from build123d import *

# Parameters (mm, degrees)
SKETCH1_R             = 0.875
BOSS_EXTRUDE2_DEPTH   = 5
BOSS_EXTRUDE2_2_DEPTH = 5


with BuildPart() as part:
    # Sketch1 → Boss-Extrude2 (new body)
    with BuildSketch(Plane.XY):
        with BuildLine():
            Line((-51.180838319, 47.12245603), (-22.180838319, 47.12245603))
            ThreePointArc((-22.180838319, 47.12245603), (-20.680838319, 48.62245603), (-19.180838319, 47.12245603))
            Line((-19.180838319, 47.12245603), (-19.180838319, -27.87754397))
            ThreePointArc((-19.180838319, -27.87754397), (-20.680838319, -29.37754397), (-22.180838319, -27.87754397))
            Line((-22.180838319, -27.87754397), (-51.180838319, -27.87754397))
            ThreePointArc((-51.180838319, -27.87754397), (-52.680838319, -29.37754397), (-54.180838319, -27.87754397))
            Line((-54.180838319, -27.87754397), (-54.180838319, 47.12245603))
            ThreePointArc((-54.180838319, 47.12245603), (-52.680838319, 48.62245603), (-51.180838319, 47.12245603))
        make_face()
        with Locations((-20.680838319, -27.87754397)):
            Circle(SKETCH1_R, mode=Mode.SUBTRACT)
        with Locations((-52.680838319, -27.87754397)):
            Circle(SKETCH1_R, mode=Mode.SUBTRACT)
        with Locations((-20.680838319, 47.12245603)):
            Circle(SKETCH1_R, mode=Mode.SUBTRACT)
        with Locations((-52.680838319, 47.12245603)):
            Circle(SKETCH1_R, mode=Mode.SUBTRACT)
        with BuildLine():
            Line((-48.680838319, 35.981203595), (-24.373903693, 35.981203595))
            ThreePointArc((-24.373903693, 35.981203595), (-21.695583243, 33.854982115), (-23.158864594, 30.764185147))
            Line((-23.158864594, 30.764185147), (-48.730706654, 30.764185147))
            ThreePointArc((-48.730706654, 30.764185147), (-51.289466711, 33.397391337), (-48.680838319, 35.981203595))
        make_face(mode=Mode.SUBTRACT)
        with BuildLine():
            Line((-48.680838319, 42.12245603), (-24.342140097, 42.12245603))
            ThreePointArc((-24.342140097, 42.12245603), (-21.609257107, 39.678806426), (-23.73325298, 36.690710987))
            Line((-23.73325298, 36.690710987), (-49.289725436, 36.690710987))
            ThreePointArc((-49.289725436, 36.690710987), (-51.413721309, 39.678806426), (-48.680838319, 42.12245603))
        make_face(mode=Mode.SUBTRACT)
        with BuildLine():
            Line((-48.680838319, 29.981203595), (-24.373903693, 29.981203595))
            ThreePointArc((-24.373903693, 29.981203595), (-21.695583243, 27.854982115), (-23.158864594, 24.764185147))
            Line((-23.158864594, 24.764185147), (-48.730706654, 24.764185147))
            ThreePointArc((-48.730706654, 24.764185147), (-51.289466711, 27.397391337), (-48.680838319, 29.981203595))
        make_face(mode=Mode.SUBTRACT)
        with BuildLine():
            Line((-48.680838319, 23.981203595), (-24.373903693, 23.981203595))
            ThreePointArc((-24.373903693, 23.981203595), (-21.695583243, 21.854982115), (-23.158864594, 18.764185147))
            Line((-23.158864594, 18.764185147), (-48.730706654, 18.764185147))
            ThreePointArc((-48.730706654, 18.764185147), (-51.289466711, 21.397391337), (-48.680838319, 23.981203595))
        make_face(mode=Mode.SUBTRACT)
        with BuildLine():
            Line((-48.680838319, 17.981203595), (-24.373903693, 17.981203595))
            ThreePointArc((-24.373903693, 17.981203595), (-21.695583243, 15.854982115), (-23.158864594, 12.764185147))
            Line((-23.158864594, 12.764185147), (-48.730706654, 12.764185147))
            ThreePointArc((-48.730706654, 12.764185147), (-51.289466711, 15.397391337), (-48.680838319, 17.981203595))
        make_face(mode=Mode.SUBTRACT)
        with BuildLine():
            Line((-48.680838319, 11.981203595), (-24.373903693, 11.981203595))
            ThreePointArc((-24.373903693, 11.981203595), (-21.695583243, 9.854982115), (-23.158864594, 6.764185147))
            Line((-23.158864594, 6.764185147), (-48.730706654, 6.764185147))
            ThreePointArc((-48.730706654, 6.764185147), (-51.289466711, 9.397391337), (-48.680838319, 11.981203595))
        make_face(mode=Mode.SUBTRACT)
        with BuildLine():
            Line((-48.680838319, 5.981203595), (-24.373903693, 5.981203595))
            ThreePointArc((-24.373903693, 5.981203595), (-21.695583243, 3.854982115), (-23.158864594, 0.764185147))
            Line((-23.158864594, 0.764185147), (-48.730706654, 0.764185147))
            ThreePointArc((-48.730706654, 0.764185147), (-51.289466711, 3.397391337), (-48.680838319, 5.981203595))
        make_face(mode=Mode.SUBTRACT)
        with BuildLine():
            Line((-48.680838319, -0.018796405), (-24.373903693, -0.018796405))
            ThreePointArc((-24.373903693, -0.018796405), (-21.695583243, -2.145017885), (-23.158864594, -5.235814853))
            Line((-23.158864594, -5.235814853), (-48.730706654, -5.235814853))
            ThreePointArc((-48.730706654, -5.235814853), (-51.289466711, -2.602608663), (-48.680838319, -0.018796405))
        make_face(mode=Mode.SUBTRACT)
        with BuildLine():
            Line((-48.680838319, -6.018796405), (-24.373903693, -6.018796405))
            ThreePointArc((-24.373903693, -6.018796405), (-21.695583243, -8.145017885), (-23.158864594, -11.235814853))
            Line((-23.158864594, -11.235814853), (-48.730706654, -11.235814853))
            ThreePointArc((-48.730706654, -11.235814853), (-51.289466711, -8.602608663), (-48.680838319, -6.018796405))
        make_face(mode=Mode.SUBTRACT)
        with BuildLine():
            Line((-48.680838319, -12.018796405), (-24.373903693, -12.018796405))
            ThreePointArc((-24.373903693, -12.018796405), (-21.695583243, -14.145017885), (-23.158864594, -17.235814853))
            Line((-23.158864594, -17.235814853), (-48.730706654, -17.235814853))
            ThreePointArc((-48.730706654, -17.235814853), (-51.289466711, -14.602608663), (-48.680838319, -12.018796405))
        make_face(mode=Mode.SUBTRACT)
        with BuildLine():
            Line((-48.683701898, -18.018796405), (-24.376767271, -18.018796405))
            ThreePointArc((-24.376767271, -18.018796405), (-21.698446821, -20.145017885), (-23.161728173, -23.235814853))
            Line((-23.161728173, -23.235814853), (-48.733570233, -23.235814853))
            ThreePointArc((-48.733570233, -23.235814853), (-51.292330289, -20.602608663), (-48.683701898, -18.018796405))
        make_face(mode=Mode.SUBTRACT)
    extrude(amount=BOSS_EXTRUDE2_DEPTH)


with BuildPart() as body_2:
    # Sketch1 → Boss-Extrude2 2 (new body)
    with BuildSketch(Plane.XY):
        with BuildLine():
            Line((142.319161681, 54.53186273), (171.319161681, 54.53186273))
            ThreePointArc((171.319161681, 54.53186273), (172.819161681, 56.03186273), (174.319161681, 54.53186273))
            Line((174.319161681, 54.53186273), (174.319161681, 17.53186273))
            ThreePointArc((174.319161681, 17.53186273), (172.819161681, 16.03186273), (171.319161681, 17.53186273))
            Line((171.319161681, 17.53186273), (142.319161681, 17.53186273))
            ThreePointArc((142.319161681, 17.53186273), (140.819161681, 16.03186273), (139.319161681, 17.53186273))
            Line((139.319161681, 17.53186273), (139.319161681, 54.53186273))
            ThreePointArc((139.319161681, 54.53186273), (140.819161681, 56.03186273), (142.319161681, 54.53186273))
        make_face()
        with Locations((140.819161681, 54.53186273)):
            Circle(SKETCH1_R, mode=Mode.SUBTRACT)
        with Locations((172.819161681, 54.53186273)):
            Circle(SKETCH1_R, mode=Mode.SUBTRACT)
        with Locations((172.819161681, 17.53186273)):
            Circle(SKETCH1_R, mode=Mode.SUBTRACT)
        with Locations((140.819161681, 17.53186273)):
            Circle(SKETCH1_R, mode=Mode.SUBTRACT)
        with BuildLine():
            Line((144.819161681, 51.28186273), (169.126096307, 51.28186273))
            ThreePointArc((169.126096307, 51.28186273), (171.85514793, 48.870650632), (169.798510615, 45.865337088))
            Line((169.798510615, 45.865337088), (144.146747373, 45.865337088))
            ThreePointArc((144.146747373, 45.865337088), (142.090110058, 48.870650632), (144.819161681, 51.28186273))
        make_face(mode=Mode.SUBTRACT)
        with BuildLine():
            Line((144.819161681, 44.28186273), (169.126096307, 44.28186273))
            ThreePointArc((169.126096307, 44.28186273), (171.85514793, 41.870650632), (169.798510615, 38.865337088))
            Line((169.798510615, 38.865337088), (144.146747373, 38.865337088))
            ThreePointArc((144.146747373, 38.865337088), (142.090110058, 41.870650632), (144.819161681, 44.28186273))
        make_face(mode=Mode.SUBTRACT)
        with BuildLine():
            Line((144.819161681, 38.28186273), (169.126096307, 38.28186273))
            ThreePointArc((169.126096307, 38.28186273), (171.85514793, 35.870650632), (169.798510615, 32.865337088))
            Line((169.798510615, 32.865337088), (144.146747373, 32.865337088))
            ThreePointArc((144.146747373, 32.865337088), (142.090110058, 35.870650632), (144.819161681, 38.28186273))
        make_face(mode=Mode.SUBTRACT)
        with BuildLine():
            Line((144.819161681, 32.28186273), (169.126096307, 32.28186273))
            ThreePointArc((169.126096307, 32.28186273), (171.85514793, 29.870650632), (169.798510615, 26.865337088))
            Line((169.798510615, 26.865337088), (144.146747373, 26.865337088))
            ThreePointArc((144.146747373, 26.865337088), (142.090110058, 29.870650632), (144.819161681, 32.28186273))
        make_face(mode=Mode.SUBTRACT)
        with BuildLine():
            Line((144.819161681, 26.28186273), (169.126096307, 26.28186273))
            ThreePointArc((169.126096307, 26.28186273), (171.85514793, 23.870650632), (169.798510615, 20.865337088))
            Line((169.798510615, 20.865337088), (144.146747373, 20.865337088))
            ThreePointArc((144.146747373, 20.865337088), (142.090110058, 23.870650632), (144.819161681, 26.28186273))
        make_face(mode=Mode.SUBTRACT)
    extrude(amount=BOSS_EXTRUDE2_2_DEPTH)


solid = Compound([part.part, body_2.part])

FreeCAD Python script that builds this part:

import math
import FreeCAD as App
import Part
import Sketcher
from FreeCAD import Vector
Q = App.Units.Quantity

doc = App.newDocument("Part")
body = doc.addObject("PartDesign::Body", "Body")

# Sketch on XY plane
sketch1 = doc.addObject("Sketcher::SketchObject", "Sketch")
body.addObject(sketch1)
sketch1.AttachmentSupport = (doc.XY_Plane, [""])
sketch1.MapMode = "FlatFace"
sketch1.addGeometry(Part.LineSegment(Vector(-22.180838, 47.122456, 0), Vector(-51.180838, 47.122456, 0)), False)
sketch1.addGeometry(Part.ArcOfCircle(Part.Circle(Vector(-52.680838, 47.122456, 0), Vector(0, 0, 1), 1.5), math.radians(0), math.radians(180)), False)
sketch1.addGeometry(Part.LineSegment(Vector(-54.180838, 47.122456, 0), Vector(-54.180838, -27.877544, 0)), False)
sketch1.addGeometry(Part.ArcOfCircle(Part.Circle(Vector(-52.680838, -27.877544, 0), Vector(0, 0, 1), 1.5), math.radians(180), math.radians(360)), False)
sketch1.addGeometry(Part.LineSegment(Vector(-51.180838, -27.877544, 0), Vector(-22.180838, -27.877544, 0)), False)
sketch1.addGeometry(Part.ArcOfCircle(Part.Circle(Vector(-20.680838, -27.877544, 0), Vector(0, 0, 1), 1.5), math.radians(180), math.radians(360)), False)
sketch1.addGeometry(Part.LineSegment(Vector(-19.180838, -27.877544, 0), Vector(-19.180838, 47.122456, 0)), False)
sketch1.addGeometry(Part.ArcOfCircle(Part.Circle(Vector(-20.680838, 47.122456, 0), Vector(0, 0, 1), 1.5), math.radians(0), math.radians(180)), False)
sketch1.addGeometry(Part.Circle(Vector(-20.680838, -27.877544, 0), Vector(0, 0, 1), 0.875), False)
sketch1.addGeometry(Part.LineSegment(Vector(-48.683702, -18.018796, 0), Vector(-24.376767, -18.018796, 0)), False)
sketch1.addGeometry(Part.ArcOfCircle(Part.Circle(Vector(-24.376767, -20.768796, 0), Vector(0, 0, 1), 2.75), math.radians(-63.779146), math.radians(90)), False)
sketch1.addGeometry(Part.LineSegment(Vector(-23.161728, -23.235815, 0), Vector(-48.73357, -23.235815, 0)), False)
sketch1.addGeometry(Part.ArcOfCircle(Part.Circle(Vector(-48.683702, -20.627544, 0), Vector(0, 0, 1), 2.608748), math.radians(90), math.radians(268.904678)), False)
sketch1.addGeometry(Part.LineSegment(Vector(-48.680838, -12.018796, 0), Vector(-24.373904, -12.018796, 0)), False)
sketch1.addGeometry(Part.ArcOfCircle(Part.Circle(Vector(-24.373904, -14.768796, 0), Vector(0, 0, 1), 2.75), math.radians(-63.779146), math.radians(90)), False)
sketch1.addGeometry(Part.LineSegment(Vector(-23.158865, -17.235815, 0), Vector(-48.730707, -17.235815, 0)), False)
sketch1.addGeometry(Part.ArcOfCircle(Part.Circle(Vector(-48.680838, -14.627544, 0), Vector(0, 0, 1), 2.608748), math.radians(90), math.radians(268.904678)), False)
sketch1.addGeometry(Part.LineSegment(Vector(-48.680838, -6.018796, 0), Vector(-24.373904, -6.018796, 0)), False)
sketch1.addGeometry(Part.ArcOfCircle(Part.Circle(Vector(-24.373904, -8.768796, 0), Vector(0, 0, 1), 2.75), math.radians(-63.779146), math.radians(90)), False)
sketch1.addGeometry(Part.LineSegment(Vector(-23.158865, -11.235815, 0), Vector(-48.730707, -11.235815, 0)), False)
sketch1.addGeometry(Part.ArcOfCircle(Part.Circle(Vector(-48.680838, -8.627544, 0), Vector(0, 0, 1), 2.608748), math.radians(90), math.radians(268.904678)), False)
sketch1.addGeometry(Part.LineSegment(Vector(-48.680838, -0.018796, 0), Vector(-24.373904, -0.018796, 0)), False)
sketch1.addGeometry(Part.ArcOfCircle(Part.Circle(Vector(-24.373904, -2.768796, 0), Vector(0, 0, 1), 2.75), math.radians(-63.779146), math.radians(90)), False)
sketch1.addGeometry(Part.LineSegment(Vector(-23.158865, -5.235815, 0), Vector(-48.730707, -5.235815, 0)), False)
sketch1.addGeometry(Part.ArcOfCircle(Part.Circle(Vector(-48.680838, -2.627544, 0), Vector(0, 0, 1), 2.608748), math.radians(90), math.radians(268.904678)), False)
sketch1.addGeometry(Part.LineSegment(Vector(-48.680838, 5.981204, 0), Vector(-24.373904, 5.981204, 0)), False)
sketch1.addGeometry(Part.ArcOfCircle(Part.Circle(Vector(-24.373904, 3.231204, 0), Vector(0, 0, 1), 2.75), math.radians(-63.779146), math.radians(90)), False)
sketch1.addGeometry(Part.LineSegment(Vector(-23.158865, 0.764185, 0), Vector(-48.730707, 0.764185, 0)), False)
sketch1.addGeometry(Part.ArcOfCircle(Part.Circle(Vector(-48.680838, 3.372456, 0), Vector(0, 0, 1), 2.608748), math.radians(90), math.radians(268.904678)), False)
sketch1.addGeometry(Part.LineSegment(Vector(-48.680838, 11.981204, 0), Vector(-24.373904, 11.981204, 0)), False)
sketch1.addGeometry(Part.ArcOfCircle(Part.Circle(Vector(-24.373904, 9.231204, 0), Vector(0, 0, 1), 2.75), math.radians(-63.779146), math.radians(90)), False)
sketch1.addGeometry(Part.LineSegment(Vector(-23.158865, 6.764185, 0), Vector(-48.730707, 6.764185, 0)), False)
sketch1.addGeometry(Part.ArcOfCircle(Part.Circle(Vector(-48.680838, 9.372456, 0), Vector(0, 0, 1), 2.608748), math.radians(90), math.radians(268.904678)), False)
sketch1.addGeometry(Part.Circle(Vector(-52.680838, -27.877544, 0), Vector(0, 0, 1), 0.875), False)
sketch1.addGeometry(Part.LineSegment(Vector(-48.680838, 17.981204, 0), Vector(-24.373904, 17.981204, 0)), False)
sketch1.addGeometry(Part.ArcOfCircle(Part.Circle(Vector(-24.373904, 15.231204, 0), Vector(0, 0, 1), 2.75), math.radians(-63.779146), math.radians(90)), False)
sketch1.addGeometry(Part.LineSegment(Vector(-23.158865, 12.764185, 0), Vector(-48.730707, 12.764185, 0)), False)
sketch1.addGeometry(Part.ArcOfCircle(Part.Circle(Vector(-48.680838, 15.372456, 0), Vector(0, 0, 1), 2.608748), math.radians(90), math.radians(268.904678)), False)
sketch1.addGeometry(Part.LineSegment(Vector(-48.680838, 23.981204, 0), Vector(-24.373904, 23.981204, 0)), False)
sketch1.addGeometry(Part.ArcOfCircle(Part.Circle(Vector(-24.373904, 21.231204, 0), Vector(0, 0, 1), 2.75), math.radians(-63.779146), math.radians(90)), False)
sketch1.addGeometry(Part.LineSegment(Vector(-23.158865, 18.764185, 0), Vector(-48.730707, 18.764185, 0)), False)
sketch1.addGeometry(Part.ArcOfCircle(Part.Circle(Vector(-48.680838, 21.372456, 0), Vector(0, 0, 1), 2.608748), math.radians(90), math.radians(268.904678)), False)
sketch1.addGeometry(Part.LineSegment(Vector(-48.680838, 29.981204, 0), Vector(-24.373904, 29.981204, 0)), False)
sketch1.addGeometry(Part.ArcOfCircle(Part.Circle(Vector(-24.373904, 27.231204, 0), Vector(0, 0, 1), 2.75), math.radians(-63.779146), math.radians(90)), False)
sketch1.addGeometry(Part.LineSegment(Vector(-23.158865, 24.764185, 0), Vector(-48.730707, 24.764185, 0)), False)
sketch1.addGeometry(Part.ArcOfCircle(Part.Circle(Vector(-48.680838, 27.372456, 0), Vector(0, 0, 1), 2.608748), math.radians(90), math.radians(268.904678)), False)
sketch1.addGeometry(Part.Circle(Vector(-20.680838, 47.122456, 0), Vector(0, 0, 1), 0.875), False)
sketch1.addGeometry(Part.LineSegment(Vector(-48.680838, 35.981204, 0), Vector(-24.373904, 35.981204, 0)), False)
sketch1.addGeometry(Part.ArcOfCircle(Part.Circle(Vector(-24.373904, 33.231204, 0), Vector(0, 0, 1), 2.75), math.radians(-63.779146), math.radians(90)), False)
sketch1.addGeometry(Part.LineSegment(Vector(-23.158865, 30.764185, 0), Vector(-48.730707, 30.764185, 0)), False)
sketch1.addGeometry(Part.ArcOfCircle(Part.Circle(Vector(-48.680838, 33.372456, 0), Vector(0, 0, 1), 2.608748), math.radians(90), math.radians(268.904678)), False)
sketch1.addGeometry(Part.LineSegment(Vector(-48.680838, 42.122456, 0), Vector(-24.34214, 42.122456, 0)), False)
sketch1.addGeometry(Part.ArcOfCircle(Part.Circle(Vector(-24.34214, 39.372456, 0), Vector(0, 0, 1), 2.75), math.radians(-77.207932), math.radians(90)), False)
sketch1.addGeometry(Part.LineSegment(Vector(-23.733253, 36.690711, 0), Vector(-49.289725, 36.690711, 0)), False)
sketch1.addGeometry(Part.ArcOfCircle(Part.Circle(Vector(-48.680838, 39.372456, 0), Vector(0, 0, 1), 2.75), math.radians(90), math.radians(257.207932)), False)
sketch1.addGeometry(Part.Circle(Vector(-52.680838, 47.122456, 0), Vector(0, 0, 1), 0.875), False)
sketch1.addConstraint(Sketcher.Constraint("Coincident", 0, 2, 1, 1))
sketch1.addConstraint(Sketcher.Constraint("Tangent", 1, 2, 2, 1))
sketch1.addConstraint(Sketcher.Constraint("Tangent", 2, 2, 3, 1))
sketch1.addConstraint(Sketcher.Constraint("Coincident", 3, 2, 4, 1))
sketch1.addConstraint(Sketcher.Constraint("Coincident", 4, 2, 5, 1))
sketch1.addConstraint(Sketcher.Constraint("Tangent", 5, 2, 6, 1))
sketch1.addConstraint(Sketcher.Constraint("Tangent", 6, 2, 7, 1))
sketch1.addConstraint(Sketcher.Constraint("Coincident", 7, 2, 0, 1))
sketch1.addConstraint(Sketcher.Constraint("Tangent", 9, 2, 10, 2))
sketch1.addConstraint(Sketcher.Constraint("Coincident", 10, 1, 11, 1))
sketch1.addConstraint(Sketcher.Constraint("Coincident", 11, 2, 12, 2))
sketch1.addConstraint(Sketcher.Constraint("Tangent", 12, 1, 9, 1))
sketch1.addConstraint(Sketcher.Constraint("Tangent", 13, 2, 14, 2))
sketch1.addConstraint(Sketcher.Constraint("Coincident", 14, 1, 15, 1))
sketch1.addConstraint(Sketcher.Constraint("Coincident", 15, 2, 16, 2))
sketch1.addConstraint(Sketcher.Constraint("Tangent", 16, 1, 13, 1))
sketch1.addConstraint(Sketcher.Constraint("Tangent", 17, 2, 18, 2))
sketch1.addConstraint(Sketcher.Constraint("Coincident", 18, 1, 19, 1))
sketch1.addConstraint(Sketcher.Constraint("Coincident", 19, 2, 20, 2))
sketch1.addConstraint(Sketcher.Constraint("Tangent", 20, 1, 17, 1))
sketch1.addConstraint(Sketcher.Constraint("Tangent", 21, 2, 22, 2))
sketch1.addConstraint(Sketcher.Constraint("Coincident", 22, 1, 23, 1))
sketch1.addConstraint(Sketcher.Constraint("Coincident", 23, 2, 24, 2))
sketch1.addConstraint(Sketcher.Constraint("Tangent", 24, 1, 21, 1))
sketch1.addConstraint(Sketcher.Constraint("Tangent", 25, 2, 26, 2))
sketch1.addConstraint(Sketcher.Constraint("Coincident", 26, 1, 27, 1))
sketch1.addConstraint(Sketcher.Constraint("Coincident", 27, 2, 28, 2))
sketch1.addConstraint(Sketcher.Constraint("Tangent", 28, 1, 25, 1))
sketch1.addConstraint(Sketcher.Constraint("Tangent", 29, 2, 30, 2))
sketch1.addConstraint(Sketcher.Constraint("Coincident", 30, 1, 31, 1))
sketch1.addConstraint(Sketcher.Constraint("Coincident", 31, 2, 32, 2))
sketch1.addConstraint(Sketcher.Constraint("Tangent", 32, 1, 29, 1))
sketch1.addConstraint(Sketcher.Constraint("Tangent", 34, 2, 35, 2))
sketch1.addConstraint(Sketcher.Constraint("Coincident", 35, 1, 36, 1))
sketch1.addConstraint(Sketcher.Constraint("Coincident", 36, 2, 37, 2))
sketch1.addConstraint(Sketcher.Constraint("Tangent", 37, 1, 34, 1))
sketch1.addConstraint(Sketcher.Constraint("Tangent", 38, 2, 39, 2))
sketch1.addConstraint(Sketcher.Constraint("Coincident", 39, 1, 40, 1))
sketch1.addConstraint(Sketcher.Constraint("Coincident", 40, 2, 41, 2))
sketch1.addConstraint(Sketcher.Constraint("Tangent", 41, 1, 38, 1))
sketch1.addConstraint(Sketcher.Constraint("Tangent", 42, 2, 43, 2))
sketch1.addConstraint(Sketcher.Constraint("Coincident", 43, 1, 44, 1))
sketch1.addConstraint(Sketcher.Constraint("Coincident", 44, 2, 45, 2))
sketch1.addConstraint(Sketcher.Constraint("Tangent", 45, 1, 42, 1))
sketch1.addConstraint(Sketcher.Constraint("Tangent", 47, 2, 48, 2))
sketch1.addConstraint(Sketcher.Constraint("Coincident", 48, 1, 49, 1))
sketch1.addConstraint(Sketcher.Constraint("Coincident", 49, 2, 50, 2))
sketch1.addConstraint(Sketcher.Constraint("Tangent", 50, 1, 47, 1))
sketch1.addConstraint(Sketcher.Constraint("Tangent", 51, 2, 52, 2))
sketch1.addConstraint(Sketcher.Constraint("Coincident", 52, 1, 53, 1))
sketch1.addConstraint(Sketcher.Constraint("Coincident", 53, 2, 54, 2))
sketch1.addConstraint(Sketcher.Constraint("Tangent", 54, 1, 51, 1))
sketch1.addConstraint(Sketcher.Constraint("Horizontal", 0))
sketch1.addConstraint(Sketcher.Constraint("Vertical", 2))
sketch1.addConstraint(Sketcher.Constraint("Horizontal", 4))
sketch1.addConstraint(Sketcher.Constraint("Vertical", 6))
sketch1.addConstraint(Sketcher.Constraint("Horizontal", 9))
sketch1.addConstraint(Sketcher.Constraint("Horizontal", 11))
sketch1.addConstraint(Sketcher.Constraint("Horizontal", 13))
sketch1.addConstraint(Sketcher.Constraint("Horizontal", 15))
sketch1.addConstraint(Sketcher.Constraint("Horizontal", 17))
sketch1.addConstraint(Sketcher.Constraint("Horizontal", 19))
sketch1.addConstraint(Sketcher.Constraint("Horizontal", 21))
sketch1.addConstraint(Sketcher.Constraint("Horizontal", 23))
sketch1.addConstraint(Sketcher.Constraint("Horizontal", 25))
sketch1.addConstraint(Sketcher.Constraint("Horizontal", 27))
sketch1.addConstraint(Sketcher.Constraint("Horizontal", 29))
sketch1.addConstraint(Sketcher.Constraint("Horizontal", 31))
sketch1.addConstraint(Sketcher.Constraint("Horizontal", 34))
sketch1.addConstraint(Sketcher.Constraint("Horizontal", 36))
sketch1.addConstraint(Sketcher.Constraint("Horizontal", 38))
sketch1.addConstraint(Sketcher.Constraint("Horizontal", 40))
sketch1.addConstraint(Sketcher.Constraint("Horizontal", 42))
sketch1.addConstraint(Sketcher.Constraint("Horizontal", 44))
sketch1.addConstraint(Sketcher.Constraint("Horizontal", 47))
sketch1.addConstraint(Sketcher.Constraint("Horizontal", 49))
sketch1.addConstraint(Sketcher.Constraint("Horizontal", 51))
sketch1.addConstraint(Sketcher.Constraint("Horizontal", 53))
sketch1.addConstraint(Sketcher.Constraint("Coincident", 8, 3, 5, 3))
sketch1.addConstraint(Sketcher.Constraint("Coincident", 33, 3, 3, 3))
sketch1.addConstraint(Sketcher.Constraint("Coincident", 46, 3, 7, 3))
sketch1.addConstraint(Sketcher.Constraint("Coincident", 55, 3, 1, 3))
sketch1.addConstraint(Sketcher.Constraint("Equal", 1, 3))
sketch1.addConstraint(Sketcher.Constraint("Equal", 3, 5))
sketch1.addConstraint(Sketcher.Constraint("Equal", 5, 7))
sketch1.addConstraint(Sketcher.Constraint("Equal", 10, 14))
sketch1.addConstraint(Sketcher.Constraint("Equal", 12, 16))
sketch1.addConstraint(Sketcher.Constraint("Equal", 14, 18))
sketch1.addConstraint(Sketcher.Constraint("Equal", 16, 20))
sketch1.addConstraint(Sketcher.Constraint("Equal", 18, 22))
sketch1.addConstraint(Sketcher.Constraint("Equal", 20, 24))
sketch1.addConstraint(Sketcher.Constraint("Equal", 22, 26))
sketch1.addConstraint(Sketcher.Constraint("Equal", 24, 28))
sketch1.addConstraint(Sketcher.Constraint("Equal", 26, 30))
sketch1.addConstraint(Sketcher.Constraint("Equal", 28, 32))
sketch1.addConstraint(Sketcher.Constraint("Equal", 8, 33))
sketch1.addConstraint(Sketcher.Constraint("Equal", 30, 35))
sketch1.addConstraint(Sketcher.Constraint("Equal", 32, 37))
sketch1.addConstraint(Sketcher.Constraint("Equal", 35, 39))
sketch1.addConstraint(Sketcher.Constraint("Equal", 37, 41))
sketch1.addConstraint(Sketcher.Constraint("Equal", 39, 43))
sketch1.addConstraint(Sketcher.Constraint("Equal", 41, 45))
sketch1.addConstraint(Sketcher.Constraint("Equal", 33, 46))
sketch1.addConstraint(Sketcher.Constraint("Equal", 43, 48))
sketch1.addConstraint(Sketcher.Constraint("Equal", 45, 50))
sketch1.addConstraint(Sketcher.Constraint("Equal", 48, 52))
sketch1.addConstraint(Sketcher.Constraint("Equal", 52, 54))
sketch1.addConstraint(Sketcher.Constraint("Equal", 46, 55))
sketch1.addConstraint(Sketcher.Constraint("Horizontal", 3, 3, 5, 3))
sketch1.addConstraint(Sketcher.Constraint("Horizontal", 1, 3, 7, 3))
sketch1.addConstraint(Sketcher.Constraint("Horizontal", 55, 3, 0, 2))
sketch1.addConstraint(Sketcher.Constraint("Horizontal", 2, 2, 3, 2))
sketch1.addConstraint(Sketcher.Constraint("Vertical", 14, 3, 18, 3))
sketch1.addConstraint(Sketcher.Constraint("Vertical", 16, 3, 20, 3))
sketch1.addConstraint(Sketcher.Constraint("Vertical", 18, 3, 22, 3))
sketch1.addConstraint(Sketcher.Constraint("Vertical", 20, 3, 24, 3))
sketch1.addConstraint(Sketcher.Constraint("Vertical", 22, 3, 26, 3))
sketch1.addConstraint(Sketcher.Constraint("Vertical", 24, 3, 28, 3))
sketch1.addConstraint(Sketcher.Constraint("Vertical", 26, 3, 30, 3))
sketch1.addConstraint(Sketcher.Constraint("Vertical", 28, 3, 32, 3))
sketch1.addConstraint(Sketcher.Constraint("Vertical", 30, 3, 35, 3))
sketch1.addConstraint(Sketcher.Constraint("Vertical", 32, 3, 37, 3))
sketch1.addConstraint(Sketcher.Constraint("Vertical", 35, 3, 39, 3))
sketch1.addConstraint(Sketcher.Constraint("Vertical", 37, 3, 41, 3))
sketch1.addConstraint(Sketcher.Constraint("Vertical", 39, 3, 43, 3))
sketch1.addConstraint(Sketcher.Constraint("Vertical", 41, 3, 45, 3))
sketch1.addConstraint(Sketcher.Constraint("Vertical", 43, 3, 48, 3))
sketch1.addConstraint(Sketcher.Constraint("Vertical", 45, 3, 50, 3))
sketch1.addConstraint(Sketcher.Constraint("Vertical", 50, 3, 54, 3))
sketch1.addConstraint(Sketcher.Constraint("Vertical", 14, 1, 18, 1))
sketch1.addConstraint(Sketcher.Constraint("Vertical", 18, 1, 22, 1))
sketch1.addConstraint(Sketcher.Constraint("Vertical", 22, 1, 26, 1))
sketch1.addConstraint(Sketcher.Constraint("Vertical", 26, 1, 30, 1))
sketch1.addConstraint(Sketcher.Constraint("Vertical", 30, 1, 35, 1))
sketch1.addConstraint(Sketcher.Constraint("Vertical", 35, 1, 39, 1))
sketch1.addConstraint(Sketcher.Constraint("Vertical", 39, 1, 43, 1))
sketch1.addConstraint(Sketcher.Constraint("Vertical", 43, 1, 48, 1))
sketch1.addConstraint(Sketcher.Constraint("Equal", 9, 13))
sketch1.addConstraint(Sketcher.Constraint("Equal", 11, 15))
sketch1.addConstraint(Sketcher.Constraint("Radius", 1, Q("1.5 mm")))
sketch1.addConstraint(Sketcher.Constraint("Diameter", 8, Q("1.75 mm")))
sketch1.addConstraint(Sketcher.Constraint("DistanceX", 0, 2, 0, 1, Q("29 mm")))
sketch1.addConstraint(Sketcher.Constraint("DistanceY", 2, 2, 2, 1, Q("75 mm")))
sketch1.addConstraint(Sketcher.Constraint("Radius", 10, Q("2.75 mm")))
sketch1.addConstraint(Sketcher.Constraint("DistanceX", 51, 1, 51, 2, Q("24.338698 mm")))
sketch1.addConstraint(Sketcher.Constraint("Radius", 12, Q("2.608748 mm")))
sketch1.addConstraint(Sketcher.Constraint("DistanceX", 12, 3, -1, 1, Q("48.683702 mm")))
sketch1.addConstraint(Sketcher.Constraint("DistanceX", 9, 1, 9, 2, Q("24.306935 mm")))
sketch1.addConstraint(Sketcher.Constraint("DistanceX", 11, 2, 11, 1, Q("25.571842 mm")))
sketch1.addConstraint(Sketcher.Constraint("DistanceX", 53, 2, 53, 1, Q("25.556472 mm")))
sketch1.addConstraint(Sketcher.Constraint("DistanceX", 1, 3, -1, 1, Q("52.680838 mm")))
sketch1.addConstraint(Sketcher.Constraint("DistanceX", 16, 3, -1, 1, Q("48.680838 mm")))
sketch1.addConstraint(Sketcher.Constraint("DistanceY", -1, 1, 52, 1, Q("36.690711 mm")))
sketch1.addConstraint(Sketcher.Constraint("DistanceY", -1, 1, 1, 3, Q("47.122456 mm")))
sketch1.addConstraint(Sketcher.Constraint("DistanceY", 10, 3, -1, 1, Q("20.768796 mm")))
sketch1.addConstraint(Sketcher.Constraint("DistanceY", 14, 3, -1, 1, Q("14.768796 mm")))
sketch1.addConstraint(Sketcher.Constraint("DistanceY", 18, 3, -1, 1, Q("8.768796 mm")))
sketch1.addConstraint(Sketcher.Constraint("DistanceY", 22, 3, -1, 1, Q("2.768796 mm")))
sketch1.addConstraint(Sketcher.Constraint("DistanceY", -1, 1, 26, 3, Q("3.231204 mm")))
sketch1.addConstraint(Sketcher.Constraint("DistanceY", -1, 1, 30, 3, Q("9.231204 mm")))
sketch1.addConstraint(Sketcher.Constraint("DistanceY", -1, 1, 35, 3, Q("15.231204 mm")))
sketch1.addConstraint(Sketcher.Constraint("DistanceY", -1, 1, 39, 3, Q("21.231204 mm")))
sketch1.addConstraint(Sketcher.Constraint("DistanceY", -1, 1, 43, 3, Q("27.231204 mm")))
sketch1.addConstraint(Sketcher.Constraint("DistanceY", -1, 1, 48, 3, Q("33.231204 mm")))
pad1 = doc.addObject("PartDesign::Pad", "Pad")
body.addObject(pad1)
pad1.Profile = sketch1
pad1.Length = 5
body2 = doc.addObject("PartDesign::Body", "Body001")

# Sketch on XY plane
sketch2 = doc.addObject("Sketcher::SketchObject", "Sketch001")
body2.addObject(sketch2)
sketch2.AttachmentSupport = (doc.getObject("XY_Plane001"), [""])
sketch2.MapMode = "FlatFace"
sketch2.addGeometry(Part.LineSegment(Vector(171.319162, 54.531863, 0), Vector(142.319162, 54.531863, 0)), False)
sketch2.addGeometry(Part.ArcOfCircle(Part.Circle(Vector(140.819162, 54.531863, 0), Vector(0, 0, 1), 1.5), math.radians(0), math.radians(180)), False)
sketch2.addGeometry(Part.LineSegment(Vector(139.319162, 54.531863, 0), Vector(139.319162, 17.531863, 0)), False)
sketch2.addGeometry(Part.ArcOfCircle(Part.Circle(Vector(140.819162, 17.531863, 0), Vector(0, 0, 1), 1.5), math.radians(180), math.radians(360)), False)
sketch2.addGeometry(Part.LineSegment(Vector(142.319162, 17.531863, 0), Vector(171.319162, 17.531863, 0)), False)
sketch2.addGeometry(Part.ArcOfCircle(Part.Circle(Vector(172.819162, 17.531863, 0), Vector(0, 0, 1), 1.5), math.radians(180), math.radians(360)), False)
sketch2.addGeometry(Part.LineSegment(Vector(174.319162, 17.531863, 0), Vector(174.319162, 54.531863, 0)), False)
sketch2.addGeometry(Part.ArcOfCircle(Part.Circle(Vector(172.819162, 54.531863, 0), Vector(0, 0, 1), 1.5), math.radians(0), math.radians(180)), False)
sketch2.addGeometry(Part.Circle(Vector(172.819162, 17.531863, 0), Vector(0, 0, 1), 0.875), False)
sketch2.addGeometry(Part.LineSegment(Vector(144.819162, 26.281863, 0), Vector(169.126096, 26.281863, 0)), False)
sketch2.addGeometry(Part.ArcOfCircle(Part.Circle(Vector(169.126096, 23.531863, 0), Vector(0, 0, 1), 2.75), math.radians(-75.846868), math.radians(90)), False)
sketch2.addGeometry(Part.LineSegment(Vector(169.798511, 20.865337, 0), Vector(144.146747, 20.865337, 0)), False)
sketch2.addGeometry(Part.ArcOfCircle(Part.Circle(Vector(144.819162, 23.531863, 0), Vector(0, 0, 1), 2.75), math.radians(90), math.radians(255.846868)), False)
sketch2.addGeometry(Part.LineSegment(Vector(144.819162, 32.281863, 0), Vector(169.126096, 32.281863, 0)), False)
sketch2.addGeometry(Part.ArcOfCircle(Part.Circle(Vector(169.126096, 29.531863, 0), Vector(0, 0, 1), 2.75), math.radians(-75.846868), math.radians(90)), False)
sketch2.addGeometry(Part.LineSegment(Vector(169.798511, 26.865337, 0), Vector(144.146747, 26.865337, 0)), False)
sketch2.addGeometry(Part.ArcOfCircle(Part.Circle(Vector(144.819162, 29.531863, 0), Vector(0, 0, 1), 2.75), math.radians(90), math.radians(255.846868)), False)
sketch2.addGeometry(Part.LineSegment(Vector(144.819162, 38.281863, 0), Vector(169.126096, 38.281863, 0)), False)
sketch2.addGeometry(Part.ArcOfCircle(Part.Circle(Vector(169.126096, 35.531863, 0), Vector(0, 0, 1), 2.75), math.radians(-75.846868), math.radians(90)), False)
sketch2.addGeometry(Part.LineSegment(Vector(169.798511, 32.865337, 0), Vector(144.146747, 32.865337, 0)), False)
sketch2.addGeometry(Part.ArcOfCircle(Part.Circle(Vector(144.819162, 35.531863, 0), Vector(0, 0, 1), 2.75), math.radians(90), math.radians(255.846868)), False)
sketch2.addGeometry(Part.Circle(Vector(140.819162, 17.531863, 0), Vector(0, 0, 1), 0.875), False)
sketch2.addGeometry(Part.LineSegment(Vector(144.819162, 44.281863, 0), Vector(169.126096, 44.281863, 0)), False)
sketch2.addGeometry(Part.ArcOfCircle(Part.Circle(Vector(169.126096, 41.531863, 0), Vector(0, 0, 1), 2.75), math.radians(-75.846868), math.radians(90)), False)
sketch2.addGeometry(Part.LineSegment(Vector(169.798511, 38.865337, 0), Vector(144.146747, 38.865337, 0)), False)
sketch2.addGeometry(Part.ArcOfCircle(Part.Circle(Vector(144.819162, 41.531863, 0), Vector(0, 0, 1), 2.75), math.radians(90), math.radians(255.846868)), False)
sketch2.addGeometry(Part.Circle(Vector(172.819162, 54.531863, 0), Vector(0, 0, 1), 0.875), False)
sketch2.addGeometry(Part.LineSegment(Vector(144.819162, 51.281863, 0), Vector(169.126096, 51.281863, 0)), False)
sketch2.addGeometry(Part.ArcOfCircle(Part.Circle(Vector(169.126096, 48.531863, 0), Vector(0, 0, 1), 2.75), math.radians(-75.846868), math.radians(90)), False)
sketch2.addGeometry(Part.LineSegment(Vector(169.798511, 45.865337, 0), Vector(144.146747, 45.865337, 0)), False)
sketch2.addGeometry(Part.ArcOfCircle(Part.Circle(Vector(144.819162, 48.531863, 0), Vector(0, 0, 1), 2.75), math.radians(90), math.radians(255.846868)), False)
sketch2.addGeometry(Part.Circle(Vector(140.819162, 54.531863, 0), Vector(0, 0, 1), 0.875), False)
sketch2.addConstraint(Sketcher.Constraint("Coincident", 0, 2, 1, 1))
sketch2.addConstraint(Sketcher.Constraint("Tangent", 1, 2, 2, 1))
sketch2.addConstraint(Sketcher.Constraint("Tangent", 2, 2, 3, 1))
sketch2.addConstraint(Sketcher.Constraint("Coincident", 3, 2, 4, 1))
sketch2.addConstraint(Sketcher.Constraint("Coincident", 4, 2, 5, 1))
sketch2.addConstraint(Sketcher.Constraint("Tangent", 5, 2, 6, 1))
sketch2.addConstraint(Sketcher.Constraint("Tangent", 6, 2, 7, 1))
sketch2.addConstraint(Sketcher.Constraint("Coincident", 7, 2, 0, 1))
sketch2.addConstraint(Sketcher.Constraint("Tangent", 9, 2, 10, 2))
sketch2.addConstraint(Sketcher.Constraint("Coincident", 10, 1, 11, 1))
sketch2.addConstraint(Sketcher.Constraint("Coincident", 11, 2, 12, 2))
sketch2.addConstraint(Sketcher.Constraint("Tangent", 12, 1, 9, 1))
sketch2.addConstraint(Sketcher.Constraint("Tangent", 13, 2, 14, 2))
sketch2.addConstraint(Sketcher.Constraint("Coincident", 14, 1, 15, 1))
sketch2.addConstraint(Sketcher.Constraint("Coincident", 15, 2, 16, 2))
sketch2.addConstraint(Sketcher.Constraint("Tangent", 16, 1, 13, 1))
sketch2.addConstraint(Sketcher.Constraint("Tangent", 17, 2, 18, 2))
sketch2.addConstraint(Sketcher.Constraint("Coincident", 18, 1, 19, 1))
sketch2.addConstraint(Sketcher.Constraint("Coincident", 19, 2, 20, 2))
sketch2.addConstraint(Sketcher.Constraint("Tangent", 20, 1, 17, 1))
sketch2.addConstraint(Sketcher.Constraint("Tangent", 22, 2, 23, 2))
sketch2.addConstraint(Sketcher.Constraint("Coincident", 23, 1, 24, 1))
sketch2.addConstraint(Sketcher.Constraint("Coincident", 24, 2, 25, 2))
sketch2.addConstraint(Sketcher.Constraint("Tangent", 25, 1, 22, 1))
sketch2.addConstraint(Sketcher.Constraint("Tangent", 27, 2, 28, 2))
sketch2.addConstraint(Sketcher.Constraint("Coincident", 28, 1, 29, 1))
sketch2.addConstraint(Sketcher.Constraint("Coincident", 29, 2, 30, 2))
sketch2.addConstraint(Sketcher.Constraint("Tangent", 30, 1, 27, 1))
sketch2.addConstraint(Sketcher.Constraint("Horizontal", 0))
sketch2.addConstraint(Sketcher.Constraint("Vertical", 2))
sketch2.addConstraint(Sketcher.Constraint("Horizontal", 4))
sketch2.addConstraint(Sketcher.Constraint("Vertical", 6))
sketch2.addConstraint(Sketcher.Constraint("Horizontal", 9))
sketch2.addConstraint(Sketcher.Constraint("Horizontal", 11))
sketch2.addConstraint(Sketcher.Constraint("Horizontal", 13))
sketch2.addConstraint(Sketcher.Constraint("Horizontal", 15))
sketch2.addConstraint(Sketcher.Constraint("Horizontal", 17))
sketch2.addConstraint(Sketcher.Constraint("Horizontal", 19))
sketch2.addConstraint(Sketcher.Constraint("Horizontal", 22))
sketch2.addConstraint(Sketcher.Constraint("Horizontal", 24))
sketch2.addConstraint(Sketcher.Constraint("Horizontal", 27))
sketch2.addConstraint(Sketcher.Constraint("Horizontal", 29))
sketch2.addConstraint(Sketcher.Constraint("Coincident", 8, 3, 5, 3))
sketch2.addConstraint(Sketcher.Constraint("Coincident", 21, 3, 3, 3))
sketch2.addConstraint(Sketcher.Constraint("Coincident", 26, 3, 7, 3))
sketch2.addConstraint(Sketcher.Constraint("Coincident", 31, 3, 1, 3))
sketch2.addConstraint(Sketcher.Constraint("Equal", 1, 3))
sketch2.addConstraint(Sketcher.Constraint("Equal", 3, 5))
sketch2.addConstraint(Sketcher.Constraint("Equal", 5, 7))
sketch2.addConstraint(Sketcher.Constraint("Equal", 10, 12))
sketch2.addConstraint(Sketcher.Constraint("Equal", 12, 14))
sketch2.addConstraint(Sketcher.Constraint("Equal", 14, 16))
sketch2.addConstraint(Sketcher.Constraint("Equal", 16, 18))
sketch2.addConstraint(Sketcher.Constraint("Equal", 18, 20))
sketch2.addConstraint(Sketcher.Constraint("Equal", 8, 21))
sketch2.addConstraint(Sketcher.Constraint("Equal", 20, 23))
sketch2.addConstraint(Sketcher.Constraint("Equal", 23, 25))
sketch2.addConstraint(Sketcher.Constraint("Equal", 21, 26))
sketch2.addConstraint(Sketcher.Constraint("Equal", 25, 28))
sketch2.addConstraint(Sketcher.Constraint("Equal", 28, 30))
sketch2.addConstraint(Sketcher.Constraint("Equal", 26, 31))
sketch2.addConstraint(Sketcher.Constraint("Horizontal", 3, 3, 5, 3))
sketch2.addConstraint(Sketcher.Constraint("Horizontal", 1, 3, 7, 3))
sketch2.addConstraint(Sketcher.Constraint("Horizontal", 31, 3, 0, 2))
sketch2.addConstraint(Sketcher.Constraint("Horizontal", 2, 2, 3, 2))
sketch2.addConstraint(Sketcher.Constraint("Vertical", 10, 3, 14, 3))
sketch2.addConstraint(Sketcher.Constraint("Vertical", 12, 3, 16, 3))
sketch2.addConstraint(Sketcher.Constraint("Vertical", 14, 3, 18, 3))
sketch2.addConstraint(Sketcher.Constraint("Vertical", 16, 3, 20, 3))
sketch2.addConstraint(Sketcher.Constraint("Vertical", 18, 3, 23, 3))
sketch2.addConstraint(Sketcher.Constraint("Vertical", 20, 3, 25, 3))
sketch2.addConstraint(Sketcher.Constraint("Vertical", 23, 3, 28, 3))
sketch2.addConstraint(Sketcher.Constraint("Vertical", 25, 3, 30, 3))
sketch2.addConstraint(Sketcher.Constraint("Vertical", 10, 1, 14, 1))
sketch2.addConstraint(Sketcher.Constraint("Vertical", 14, 1, 18, 1))
sketch2.addConstraint(Sketcher.Constraint("Vertical", 18, 1, 23, 1))
sketch2.addConstraint(Sketcher.Constraint("Vertical", 23, 1, 28, 1))
sketch2.addConstraint(Sketcher.Constraint("Radius", 1, Q("1.5 mm")))
sketch2.addConstraint(Sketcher.Constraint("Diameter", 8, Q("1.75 mm")))
sketch2.addConstraint(Sketcher.Constraint("DistanceX", 0, 2, 0, 1, Q("29 mm")))
sketch2.addConstraint(Sketcher.Constraint("DistanceY", 2, 2, 2, 1, Q("37 mm")))
sketch2.addConstraint(Sketcher.Constraint("Radius", 10, Q("2.75 mm")))
sketch2.addConstraint(Sketcher.Constraint("DistanceY", 5, 3, 10, 3, Q("6 mm")))
sketch2.addConstraint(Sketcher.Constraint("DistanceX", 3, 3, 12, 3, Q("4 mm")))
sketch2.addConstraint(Sketcher.Constraint("DistanceY", 10, 3, 14, 3, Q("6 mm")))
sketch2.addConstraint(Sketcher.Constraint("DistanceY", 14, 3, 18, 3, Q("6 mm")))
sketch2.addConstraint(Sketcher.Constraint("DistanceY", 18, 3, 23, 3, Q("6 mm")))
sketch2.addConstraint(Sketcher.Constraint("DistanceY", 23, 3, 28, 3, Q("7 mm")))
sketch2.addConstraint(Sketcher.Constraint("DistanceX", 9, 1, 9, 2, Q("24.306935 mm")))
sketch2.addConstraint(Sketcher.Constraint("DistanceX", 11, 2, 11, 1, Q("25.651763 mm")))
sketch2.addConstraint(Sketcher.Constraint("DistanceX", -1, 1, 1, 3, Q("140.819162 mm")))
sketch2.addConstraint(Sketcher.Constraint("DistanceY", -1, 1, 1, 3, Q("54.531863 mm")))
pad2 = doc.addObject("PartDesign::Pad", "Pad001")
body2.addObject(pad2)
pad2.Profile = sketch2
pad2.Length = 5

doc.recompute()
